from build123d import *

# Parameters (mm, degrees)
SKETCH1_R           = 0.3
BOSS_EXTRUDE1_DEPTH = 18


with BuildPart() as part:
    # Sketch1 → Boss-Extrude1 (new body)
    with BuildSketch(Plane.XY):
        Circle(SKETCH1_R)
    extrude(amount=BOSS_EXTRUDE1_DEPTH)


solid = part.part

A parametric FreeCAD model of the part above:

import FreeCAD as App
import Part
import Sketcher

doc = App.newDocument("Part")
body = doc.addObject("PartDesign::Body", "Body")

# Sketch on XY plane
sketch1 = body.newObject("Sketcher::SketchObject", "Sketch")
sketch1.AttachmentSupport = (doc.getObject("XY_Plane"), [""])
sketch1.MapMode = "FlatFace"
sketch1.addGeometry(Part.Circle(App.Vector(0, 0, 0), App.Vector(0, 0, 1), 0.3), False)
sketch1.addConstraint(Sketcher.Constraint("Coincident", 0, 3, -1, 1))
sketch1.addConstraint(Sketcher.Constraint("Diameter", 0, 0.6))
pad1 = body.newObject("PartDesign::Pad", "Pad")
pad1.Profile = sketch1
pad1.Length = 18

doc.recompute()
